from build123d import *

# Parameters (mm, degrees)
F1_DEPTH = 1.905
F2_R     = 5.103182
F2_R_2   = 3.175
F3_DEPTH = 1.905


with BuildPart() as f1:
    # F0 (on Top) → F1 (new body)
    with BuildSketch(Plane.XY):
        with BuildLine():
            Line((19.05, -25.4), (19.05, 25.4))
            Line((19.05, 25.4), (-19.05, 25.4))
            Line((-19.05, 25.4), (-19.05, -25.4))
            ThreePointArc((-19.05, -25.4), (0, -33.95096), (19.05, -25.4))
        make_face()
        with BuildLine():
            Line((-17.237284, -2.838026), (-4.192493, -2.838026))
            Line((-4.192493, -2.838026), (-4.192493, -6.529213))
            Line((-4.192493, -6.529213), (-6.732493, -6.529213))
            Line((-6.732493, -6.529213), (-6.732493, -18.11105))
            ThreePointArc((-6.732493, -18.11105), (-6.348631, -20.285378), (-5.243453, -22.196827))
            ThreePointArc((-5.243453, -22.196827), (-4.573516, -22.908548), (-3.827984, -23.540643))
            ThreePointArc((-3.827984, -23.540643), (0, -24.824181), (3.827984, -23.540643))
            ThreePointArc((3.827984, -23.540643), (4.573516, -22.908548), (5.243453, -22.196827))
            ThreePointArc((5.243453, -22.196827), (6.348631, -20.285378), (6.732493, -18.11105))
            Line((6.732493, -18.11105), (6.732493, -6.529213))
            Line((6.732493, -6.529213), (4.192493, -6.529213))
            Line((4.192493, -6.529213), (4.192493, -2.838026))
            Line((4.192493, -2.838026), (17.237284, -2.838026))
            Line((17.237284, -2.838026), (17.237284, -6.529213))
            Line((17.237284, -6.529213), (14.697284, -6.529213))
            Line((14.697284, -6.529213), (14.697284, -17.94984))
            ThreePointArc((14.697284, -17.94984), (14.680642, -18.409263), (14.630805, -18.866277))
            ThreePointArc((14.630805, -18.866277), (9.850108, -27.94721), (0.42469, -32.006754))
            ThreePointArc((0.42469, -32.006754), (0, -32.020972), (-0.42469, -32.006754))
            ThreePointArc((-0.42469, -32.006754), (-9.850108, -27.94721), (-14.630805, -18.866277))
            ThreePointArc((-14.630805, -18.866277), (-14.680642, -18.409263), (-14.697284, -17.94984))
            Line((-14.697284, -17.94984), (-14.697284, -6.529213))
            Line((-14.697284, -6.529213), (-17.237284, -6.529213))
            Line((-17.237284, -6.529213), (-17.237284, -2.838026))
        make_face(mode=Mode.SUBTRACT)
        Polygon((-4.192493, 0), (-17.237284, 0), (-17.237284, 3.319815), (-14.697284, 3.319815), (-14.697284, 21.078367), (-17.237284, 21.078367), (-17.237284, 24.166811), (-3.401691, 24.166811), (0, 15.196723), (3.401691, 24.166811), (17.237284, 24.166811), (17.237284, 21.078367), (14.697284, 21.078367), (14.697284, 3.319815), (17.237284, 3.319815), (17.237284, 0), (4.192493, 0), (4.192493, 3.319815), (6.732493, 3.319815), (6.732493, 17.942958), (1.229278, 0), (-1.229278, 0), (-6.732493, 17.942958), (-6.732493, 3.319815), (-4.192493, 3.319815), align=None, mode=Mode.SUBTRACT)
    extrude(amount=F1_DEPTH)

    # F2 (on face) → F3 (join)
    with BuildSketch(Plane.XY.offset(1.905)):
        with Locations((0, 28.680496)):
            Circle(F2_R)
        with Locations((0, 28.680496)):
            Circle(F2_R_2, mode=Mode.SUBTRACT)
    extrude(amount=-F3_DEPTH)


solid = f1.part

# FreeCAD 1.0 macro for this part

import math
import FreeCAD as App
import Part
import Sketcher
Q = App.Units.Quantity


def add_polygon(sketch, points):
    """Adds a closed chain of lines whose ends are joined by coincident constraints."""
    first, n = sketch.GeometryCount, len(points)
    for a, b in zip(points, points[1:] + points[:1]):
        sketch.addGeometry(Part.LineSegment(App.Vector(*a, 0), App.Vector(*b, 0)), False)
    for i in range(n):
        sketch.addConstraint(Sketcher.Constraint("Coincident", first + i, 2, first + (i + 1) % n, 1))

doc = App.newDocument("Part")
params = doc.addObject("Spreadsheet::Sheet", "Params")
for row, (alias, value) in enumerate([
    ("sketch1_height", "2 in"),
    ("sketch1_height2", "2 in"),
    ("sketch1_radius", "0.2499999 in"),
    ("sketch1_radius2", "0.25 in"),
    ("sketch1_radius3", "0.2499999 in"),
    ("pad1_length", "0.075 in"),
    ("sketch2_diameter", "0.25 in"),
    ("pad2_length", "0.075 in"),
], start=1):
    params.set(f"A{row}", alias)
    params.set(f"B{row}", "=" + value)
    params.setAlias(f"B{row}", alias)

body = doc.addObject("PartDesign::Body", "Body")

# Sketch on XY plane
sketch1 = body.newObject("Sketcher::SketchObject", "Sketch")
sketch1.AttachmentSupport = (doc.getObject("XY_Plane"), [""])
sketch1.MapMode = "FlatFace"
sketch1.addGeometry(Part.LineSegment(App.Vector(19.05, -25.4, 0), App.Vector(19.05, 25.4, 0)), False)  # 0
sketch1.addGeometry(Part.LineSegment(App.Vector(19.05, 25.4, 0), App.Vector(-19.05, 25.4, 0)), False)  # 1
sketch1.addGeometry(Part.LineSegment(App.Vector(-19.05, 25.4, 0), App.Vector(-19.05, -25.4, 0)), False)  # 2
sketch1.addGeometry(Part.ArcOfCircle(Part.Circle(App.Vector(0, -8.455494, 0), App.Vector(0, 0, 1), 25.495466), math.radians(-138.347695), math.radians(-41.652305)), False)  # 3
sketch1.addGeometry(Part.LineSegment(App.Vector(-17.237284, -6.529213, 0), App.Vector(-17.237284, -2.838026, 0)), False)  # 4
sketch1.addGeometry(Part.LineSegment(App.Vector(-17.237284, -2.838026, 0), App.Vector(-4.192493, -2.838026, 0)), False)  # 5
sketch1.addGeometry(Part.LineSegment(App.Vector(-4.192493, -2.838026, 0), App.Vector(-4.192493, -6.529213, 0)), False)  # 6
sketch1.addGeometry(Part.LineSegment(App.Vector(-4.192493, -6.529213, 0), App.Vector(-6.732493, -6.529213, 0)), False)  # 7
sketch1.addGeometry(Part.LineSegment(App.Vector(-6.732493, -6.529213, 0), App.Vector(-6.732493, -18.11105, 0)), False)  # 8
sketch1.addGeometry(Part.ArcOfCircle(Part.Circle(App.Vector(-0.382495, -18.111052, 0), App.Vector(0, 0, 1), 6.349998), math.radians(179.999986), math.radians(220.048022)), False)  # 9
sketch1.addGeometry(Part.ArcOfCircle(Part.Circle(App.Vector(1.417466, -16.598123, 0), App.Vector(0, 0, 1), 8.701341), math.radians(-139.951934), math.radians(-127.073025)), False)  # 10
sketch1.addGeometry(Part.ArcOfCircle(Part.Circle(App.Vector(0, -18.474182, 0), App.Vector(0, 0, 1), 6.349999), math.radians(-127.073008), math.radians(-52.926992)), False)  # 11
sketch1.addGeometry(Part.ArcOfCircle(Part.Circle(App.Vector(-1.417466, -16.598123, 0), App.Vector(0, 0, 1), 8.701341), math.radians(-52.926975), math.radians(-40.048066)), False)  # 12
sketch1.addGeometry(Part.ArcOfCircle(Part.Circle(App.Vector(0.382495, -18.111052, 0), App.Vector(0, 0, 1), 6.349998), math.radians(-40.048022), math.radians(0.000014)), False)  # 13
sketch1.addGeometry(Part.LineSegment(App.Vector(6.732493, -18.11105, 0), App.Vector(6.732493, -6.529213, 0)), False)  # 14
sketch1.addGeometry(Part.LineSegment(App.Vector(6.732493, -6.529213, 0), App.Vector(4.192493, -6.529213, 0)), False)  # 15
sketch1.addGeometry(Part.LineSegment(App.Vector(4.192493, -6.529213, 0), App.Vector(4.192493, -2.838026, 0)), False)  # 16
sketch1.addGeometry(Part.LineSegment(App.Vector(4.192493, -2.838026, 0), App.Vector(17.237284, -2.838026, 0)), False)  # 17
sketch1.addGeometry(Part.LineSegment(App.Vector(17.237284, -2.838026, 0), App.Vector(17.237284, -6.529213, 0)), False)  # 18
sketch1.addGeometry(Part.LineSegment(App.Vector(17.237284, -6.529213, 0), App.Vector(14.697284, -6.529213, 0)), False)  # 19
sketch1.addGeometry(Part.LineSegment(App.Vector(14.697284, -6.529213, 0), App.Vector(14.697284, -17.94984, 0)), False)  # 20
sketch1.addGeometry(Part.ArcOfCircle(Part.Circle(App.Vector(8.347182, -17.949829, 0), App.Vector(0, 0, 1), 6.350102), math.radians(-8.297918), math.radians(-0.000102)), False)  # 21
sketch1.addGeometry(Part.ArcOfCircle(Part.Circle(App.Vector(-0.605071, -16.644159, 0), App.Vector(0, 0, 1), 15.397069), math.radians(-86.165177), math.radians(-8.297952)), False)  # 22
sketch1.addGeometry(Part.ArcOfCircle(Part.Circle(App.Vector(0, -25.671143, 0), App.Vector(0, 0, 1), 6.349829), math.radians(-93.834925), math.radians(-86.165075)), False)  # 23
sketch1.addGeometry(Part.ArcOfCircle(Part.Circle(App.Vector(0.605071, -16.644159, 0), App.Vector(0, 0, 1), 15.397069), math.radians(-171.702048), math.radians(-93.834823)), False)  # 24
sketch1.addGeometry(Part.ArcOfCircle(Part.Circle(App.Vector(-8.347182, -17.949829, 0), App.Vector(0, 0, 1), 6.350102), math.radians(-179.999898), math.radians(-171.702082)), False)  # 25
sketch1.addGeometry(Part.LineSegment(App.Vector(-14.697284, -17.94984, 0), App.Vector(-14.697284, -6.529213, 0)), False)  # 26
sketch1.addGeometry(Part.LineSegment(App.Vector(-14.697284, -6.529213, 0), App.Vector(-17.237284, -6.529213, 0)), False)  # 27
add_polygon(sketch1, [(-4.192493, 3.319815), (-4.192493, 0), (-17.237284, 0), (-17.237284, 3.319815), (-14.697284, 3.319815), (-14.697284, 21.078367), (-17.237284, 21.078367), (-17.237284, 24.166811), (-3.401691, 24.166811), (0, 15.196723), (3.401691, 24.166811), (17.237284, 24.166811), (17.237284, 21.078367), (14.697284, 21.078367), (14.697284, 3.319815), (17.237284, 3.319815), (17.237284, 0), (4.192493, 0), (4.192493, 3.319815), (6.732493, 3.319815), (6.732493, 17.942958), (1.229278, 0), (-1.229278, 0), (-6.732493, 17.942958), (-6.732493, 3.319815)])  # lines 28-52
sketch1.addConstraint([
    Sketcher.Constraint("Coincident", 0, 2, 1, 1),
    Sketcher.Constraint("Coincident", 1, 2, 2, 1),
    Sketcher.Constraint("Coincident", 2, 2, 3, 1),
    Sketcher.Constraint("Coincident", 3, 2, 0, 1),
    Sketcher.Constraint("Coincident", 4, 2, 5, 1),
    Sketcher.Constraint("Coincident", 5, 2, 6, 1),
    Sketcher.Constraint("Coincident", 6, 2, 7, 1),
    Sketcher.Constraint("Coincident", 7, 2, 8, 1),
    Sketcher.Constraint("Coincident", 8, 2, 9, 1),
    Sketcher.Constraint("Coincident", 9, 2, 10, 1),
    Sketcher.Constraint("Coincident", 10, 2, 11, 1),
    Sketcher.Constraint("Coincident", 11, 2, 12, 1),
    Sketcher.Constraint("Coincident", 12, 2, 13, 1),
    Sketcher.Constraint("Coincident", 13, 2, 14, 1),
    Sketcher.Constraint("Coincident", 14, 2, 15, 1),
    Sketcher.Constraint("Coincident", 15, 2, 16, 1),
    Sketcher.Constraint("Coincident", 16, 2, 17, 1),
    Sketcher.Constraint("Coincident", 17, 2, 18, 1),
    Sketcher.Constraint("Coincident", 18, 2, 19, 1),
    Sketcher.Constraint("Coincident", 19, 2, 20, 1),
    Sketcher.Constraint("Coincident", 20, 2, 21, 2),
    Sketcher.Constraint("Coincident", 21, 1, 22, 2),
    Sketcher.Constraint("Coincident", 22, 1, 23, 2),
    Sketcher.Constraint("Coincident", 23, 1, 24, 2),
    Sketcher.Constraint("Coincident", 24, 1, 25, 2),
    Sketcher.Constraint("Coincident", 25, 1, 26, 1),
    Sketcher.Constraint("Coincident", 26, 2, 27, 1),
    Sketcher.Constraint("Coincident", 27, 2, 4, 1),
    Sketcher.Constraint("Vertical", 0),
    Sketcher.Constraint("Horizontal", 1),
    Sketcher.Constraint("Vertical", 2),
    Sketcher.Constraint("Vertical", 4),
    Sketcher.Constraint("Horizontal", 5),
    Sketcher.Constraint("Vertical", 6),
    Sketcher.Constraint("Horizontal", 7),
    Sketcher.Constraint("Vertical", 8),
    Sketcher.Constraint("Vertical", 14),
    Sketcher.Constraint("Horizontal", 15),
    Sketcher.Constraint("Vertical", 16),
    Sketcher.Constraint("Horizontal", 17),
    Sketcher.Constraint("Vertical", 18),
    Sketcher.Constraint("Horizontal", 19),
    Sketcher.Constraint("Vertical", 20),
    Sketcher.Constraint("Vertical", 26),
    Sketcher.Constraint("Horizontal", 27),
    Sketcher.Constraint("Vertical", 28),
    Sketcher.Constraint("Horizontal", 29),
    Sketcher.Constraint("Vertical", 30),
    Sketcher.Constraint("Horizontal", 31),
    Sketcher.Constraint("Vertical", 32),
    Sketcher.Constraint("Horizontal", 33),
    Sketcher.Constraint("Vertical", 34),
    Sketcher.Constraint("Horizontal", 35),
    Sketcher.Constraint("Horizontal", 38),
    Sketcher.Constraint("Vertical", 39),
    Sketcher.Constraint("Horizontal", 40),
    Sketcher.Constraint("Vertical", 41),
    Sketcher.Constraint("Horizontal", 42),
    Sketcher.Constraint("Vertical", 43),
    Sketcher.Constraint("Horizontal", 44),
    Sketcher.Constraint("Vertical", 45),
    Sketcher.Constraint("Horizontal", 46),
    Sketcher.Constraint("Vertical", 47),
    Sketcher.Constraint("Horizontal", 49),
    Sketcher.Constraint("Vertical", 51),
    Sketcher.Constraint("Horizontal", 52),
    Sketcher.Constraint("PointOnObject", 3, 3, -2),
    Sketcher.Constraint("PointOnObject", 11, 3, -2),
    Sketcher.Constraint("PointOnObject", 23, 3, -2),
    Sketcher.Constraint("PointOnObject", 28, 2, -1),
    Sketcher.Constraint("PointOnObject", 36, 2, -2),
    Sketcher.Constraint("PointOnObject", 43, 2, -1),
    Sketcher.Constraint("PointOnObject", 48, 2, -1),
    Sketcher.Constraint("DistanceY", 0, 1, 0, 2, Q("2 in")),
    Sketcher.Constraint("DistanceY", 2, 2, 2, 1, Q("2 in")),
    Sketcher.Constraint("Radius", 9, Q("0.2499999 in")),
    Sketcher.Constraint("Radius", 11, Q("0.25 in")),
    Sketcher.Constraint("Radius", 13, Q("0.2499999 in")),
    Sketcher.Constraint("DistanceX", 1, 2, 1, 1, Q("1.5 in")),
    Sketcher.Constraint("DistanceX", 7, 2, 7, 1, Q("0.1 in")),
    Sketcher.Constraint("DistanceX", 15, 2, 15, 1, Q("0.1 in")),
    Sketcher.Constraint("DistanceX", 19, 2, 19, 1, Q("0.1 in")),
    Sketcher.Constraint("DistanceX", 27, 2, 27, 1, Q("0.1 in")),
    Sketcher.Constraint("DistanceX", 31, 1, 31, 2, Q("0.1 in")),
    Sketcher.Constraint("DistanceX", 33, 2, 33, 1, Q("0.1 in")),
    Sketcher.Constraint("DistanceX", 40, 2, 40, 1, Q("0.1 in")),
    Sketcher.Constraint("DistanceX", 42, 1, 42, 2, Q("0.1 in")),
    Sketcher.Constraint("DistanceX", 46, 1, 46, 2, Q("0.1 in")),
    Sketcher.Constraint("DistanceX", 52, 1, 52, 2, Q("0.1 in")),
    Sketcher.Constraint("DistanceY", -1, 1, 0, 2, Q("1 in")),
    Sketcher.Constraint("Radius", 10, 8.701341),
    Sketcher.Constraint("Radius", 12, 8.701341),
    Sketcher.Constraint("Radius", 22, 15.397069),
    Sketcher.Constraint("Radius", 23, 6.349829),
    Sketcher.Constraint("Radius", 24, 15.397069),
    Sketcher.Constraint("Radius", 3, 25.495466),
    Sketcher.Constraint("Radius", 21, 6.350102),
    Sketcher.Constraint("Radius", 25, 6.350102),
    Sketcher.Constraint("DistanceX", 5, 1, 5, 2, 13.044791),
    Sketcher.Constraint("DistanceX", 17, 1, 17, 2, 13.044791),
    Sketcher.Constraint("DistanceX", 29, 2, 29, 1, 13.044791),
    Sketcher.Constraint("DistanceX", 44, 2, 44, 1, 13.044791),
    Sketcher.Constraint("DistanceX", 35, 1, 35, 2, 13.835593),
    Sketcher.Constraint("DistanceX", 38, 1, 38, 2, 13.835593),
    Sketcher.Constraint("DistanceX", 49, 2, 49, 1, 2.458556),
    Sketcher.Constraint("DistanceY", 4, 1, 4, 2, 3.691187),
    Sketcher.Constraint("DistanceY", 6, 2, 6, 1, 3.691187),
    Sketcher.Constraint("DistanceY", 8, 2, 8, 1, 11.581837),
    Sketcher.Constraint("DistanceY", 14, 1, 14, 2, 11.581837),
    Sketcher.Constraint("DistanceY", 16, 1, 16, 2, 3.691187),
    Sketcher.Constraint("DistanceY", 18, 2, 18, 1, 3.691187),
    Sketcher.Constraint("DistanceY", 20, 2, 20, 1, 11.420627),
    Sketcher.Constraint("DistanceY", 26, 1, 26, 2, 11.420627),
    Sketcher.Constraint("DistanceY", 28, 2, 28, 1, 3.319815),
    Sketcher.Constraint("DistanceY", 30, 1, 30, 2, 3.319815),
    Sketcher.Constraint("DistanceY", 32, 1, 32, 2, 17.758552),
    Sketcher.Constraint("DistanceY", 34, 1, 34, 2, 3.088444),
    Sketcher.Constraint("DistanceY", 39, 2, 39, 1, 3.088444),
    Sketcher.Constraint("DistanceY", 41, 2, 41, 1, 17.758552),
    Sketcher.Constraint("DistanceY", 43, 2, 43, 1, 3.319815),
    Sketcher.Constraint("DistanceY", 45, 1, 45, 2, 3.319815),
    Sketcher.Constraint("DistanceY", 47, 1, 47, 2, 14.623143),
    Sketcher.Constraint("DistanceY", 51, 2, 51, 1, 14.623143),
    Sketcher.Constraint("DistanceY", 9, 3, -1, 1, 18.111052),
    Sketcher.Constraint("DistanceY", 11, 3, -1, 1, 18.474182),
    Sketcher.Constraint("DistanceY", 13, 3, -1, 1, 18.111052),
    Sketcher.Constraint("DistanceX", -1, 1, 21, 3, 8.347182),
    Sketcher.Constraint("DistanceY", 21, 3, -1, 1, 17.949829),
    Sketcher.Constraint("DistanceX", 22, 3, -1, 1, 0.605071),
    Sketcher.Constraint("DistanceX", -1, 1, 24, 3, 0.605071),
    Sketcher.Constraint("DistanceX", 25, 3, -1, 1, 8.347182),
    Sketcher.Constraint("DistanceY", 8, 2, -1, 1, 18.11105),
    Sketcher.Constraint("DistanceY", 13, 2, -1, 1, 18.11105),
    Sketcher.Constraint("DistanceX", -1, 1, 22, 1, 0.42469),
    Sketcher.Constraint("DistanceX", 23, 1, -1, 1, 0.42469),
    Sketcher.Constraint("DistanceX", 35, 2, -1, 1, 3.401691),
    Sketcher.Constraint("DistanceX", -1, 1, 37, 2, 3.401691),
    Sketcher.Constraint("DistanceX", -1, 1, 48, 2, 1.229278),
    Sketcher.Constraint("Distance", 36, 9.593434),
    Sketcher.Constraint("DistanceX", 9, 2, -1, 1, 5.243453),
    Sketcher.Constraint("DistanceX", 10, 2, -1, 1, 3.827984),
    Sketcher.Constraint("DistanceX", -1, 1, 11, 2, 3.827984),
    Sketcher.Constraint("DistanceX", -1, 1, 12, 2, 5.243453),
    Sketcher.Constraint("DistanceX", -1, 1, 21, 1, 14.630805),
    Sketcher.Constraint("DistanceX", 24, 1, -1, 1, 14.630805),
])
sketch1.setExpression("Constraints[98]", "Params.sketch1_height")
sketch1.setExpression("Constraints[99]", "Params.sketch1_height2")
sketch1.setExpression("Constraints[100]", "Params.sketch1_radius")
sketch1.setExpression("Constraints[101]", "Params.sketch1_radius2")
sketch1.setExpression("Constraints[102]", "Params.sketch1_radius3")
pad1 = body.newObject("PartDesign::Pad", "Pad")
pad1.Profile = sketch1
pad1.setExpression("Length", "Params.pad1_length")

# Sketch on XY plane
sketch2 = body.newObject("Sketcher::SketchObject", "Sketch001")
sketch2.AttachmentSupport = (doc.getObject("XY_Plane"), [""])
sketch2.MapMode = "FlatFace"
sketch2.AttachmentOffset = App.Placement(App.Vector(0, 0, 0.075 * 25.4), App.Rotation())
sketch2.addGeometry([
    Part.Circle(App.Vector(0, 28.7, 0), App.Vector(0, 0, 1), 5.1),
    Part.Circle(App.Vector(0, 28.7, 0), App.Vector(0, 0, 1), 3.2),
], False)
sketch2.addConstraint([
    Sketcher.Constraint("Coincident", 1, 3, 0, 3),
    Sketcher.Constraint("PointOnObject", 0, 3, -2),
    Sketcher.Constraint("Diameter", 1, Q("0.25 in")),
    Sketcher.Constraint("Diameter", 0, 10.206364),
    Sketcher.Constraint("DistanceY", -1, 1, 0, 3, 28.680496),
])
sketch2.setExpression("Constraints[2]", "Params.sketch2_diameter")
pad2 = body.newObject("PartDesign::Pad", "Pad001")
pad2.Profile = sketch2
pad2.setExpression("Length", "Params.pad2_length")
pad2.Reversed = True

doc.recompute()
